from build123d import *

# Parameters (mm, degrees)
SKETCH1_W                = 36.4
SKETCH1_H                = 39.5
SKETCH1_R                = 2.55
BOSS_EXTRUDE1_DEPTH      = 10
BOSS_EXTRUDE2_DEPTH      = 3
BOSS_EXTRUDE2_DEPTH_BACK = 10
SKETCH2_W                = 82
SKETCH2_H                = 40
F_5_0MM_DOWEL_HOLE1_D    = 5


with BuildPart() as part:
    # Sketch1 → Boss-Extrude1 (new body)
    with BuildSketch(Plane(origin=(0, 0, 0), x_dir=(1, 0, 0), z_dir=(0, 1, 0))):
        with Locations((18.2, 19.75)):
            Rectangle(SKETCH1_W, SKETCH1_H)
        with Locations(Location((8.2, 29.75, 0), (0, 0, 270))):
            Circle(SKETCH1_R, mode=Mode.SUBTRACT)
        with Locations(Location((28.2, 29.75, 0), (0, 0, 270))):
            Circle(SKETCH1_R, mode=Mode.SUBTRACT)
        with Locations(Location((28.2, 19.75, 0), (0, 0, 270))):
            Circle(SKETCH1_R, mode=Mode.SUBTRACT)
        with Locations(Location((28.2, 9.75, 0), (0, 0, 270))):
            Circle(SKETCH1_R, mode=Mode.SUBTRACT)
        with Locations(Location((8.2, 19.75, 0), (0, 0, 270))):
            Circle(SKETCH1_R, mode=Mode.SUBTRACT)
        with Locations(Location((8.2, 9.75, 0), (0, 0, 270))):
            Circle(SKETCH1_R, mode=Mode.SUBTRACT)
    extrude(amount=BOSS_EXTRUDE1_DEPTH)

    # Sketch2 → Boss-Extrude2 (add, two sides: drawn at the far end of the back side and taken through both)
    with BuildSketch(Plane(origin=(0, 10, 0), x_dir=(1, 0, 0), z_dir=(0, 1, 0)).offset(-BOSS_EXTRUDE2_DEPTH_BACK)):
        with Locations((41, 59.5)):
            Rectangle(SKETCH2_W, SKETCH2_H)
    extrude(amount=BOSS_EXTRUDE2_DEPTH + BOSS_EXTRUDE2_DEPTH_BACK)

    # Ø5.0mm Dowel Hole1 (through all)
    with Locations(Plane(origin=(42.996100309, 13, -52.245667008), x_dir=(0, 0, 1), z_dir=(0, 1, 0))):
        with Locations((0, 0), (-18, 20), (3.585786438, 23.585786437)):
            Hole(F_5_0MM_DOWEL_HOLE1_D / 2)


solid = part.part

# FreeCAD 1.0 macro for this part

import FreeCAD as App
import Part
import Sketcher

doc = App.newDocument("Part")
body = doc.addObject("PartDesign::Body", "Body")

# Sketch on XZ plane
sketch1 = doc.addObject("Sketcher::SketchObject", "Sketch")
body.addObject(sketch1)
sketch1.AttachmentSupport = (doc.XZ_Plane, [""])
sketch1.MapMode = "FlatFace"
sketch1.addGeometry([
    Part.LineSegment(App.Vector(0, -39.5, 0), App.Vector(0, 0, 0)),  # 0
    Part.LineSegment(App.Vector(0, 0, 0), App.Vector(36.4, 0, 0)),  # 1
    Part.LineSegment(App.Vector(36.4, 0, 0), App.Vector(36.4, -39.5, 0)),  # 2
    Part.LineSegment(App.Vector(36.4, -39.5, 0), App.Vector(0, -39.5, 0)),  # 3
    Part.Circle(App.Vector(8.2, -9.8, 0), App.Vector(0, 0, 1), 2.5),  # 4
    Part.Circle(App.Vector(28.2, -9.8, 0), App.Vector(0, 0, 1), 2.5),  # 5
    Part.Circle(App.Vector(8.2, -19.8, 0), App.Vector(0, 0, 1), 2.5),  # 6
    Part.Circle(App.Vector(8.2, -29.8, 0), App.Vector(0, 0, 1), 2.5),  # 7
    Part.Circle(App.Vector(28.2, -19.8, 0), App.Vector(0, 0, 1), 2.5),  # 8
    Part.Circle(App.Vector(28.2, -29.8, 0), App.Vector(0, 0, 1), 2.5),  # 9
], False)
sketch1.addConstraint([
    Sketcher.Constraint("Coincident", 0, 2, 1, 1),
    Sketcher.Constraint("Coincident", 1, 2, 2, 1),
    Sketcher.Constraint("Coincident", 2, 2, 3, 1),
    Sketcher.Constraint("Coincident", 3, 2, 0, 1),
    Sketcher.Constraint("Vertical", 0),
    Sketcher.Constraint("Horizontal", 1),
    Sketcher.Constraint("Vertical", 2),
    Sketcher.Constraint("Horizontal", 3),
    Sketcher.Constraint("Coincident", 0, 2, -1, 1),
    Sketcher.Constraint("Equal", 4, 5),
    Sketcher.Constraint("Equal", 5, 6),
    Sketcher.Constraint("Equal", 6, 7),
    Sketcher.Constraint("Equal", 7, 8),
    Sketcher.Constraint("Equal", 8, 9),
    Sketcher.Constraint("Horizontal", 4, 3, 5, 3),
    Sketcher.Constraint("Horizontal", 6, 3, 8, 3),
    Sketcher.Constraint("Horizontal", 7, 3, 9, 3),
    Sketcher.Constraint("Vertical", 4, 3, 6, 3),
    Sketcher.Constraint("Vertical", 6, 3, 7, 3),
    Sketcher.Constraint("Vertical", 5, 3, 8, 3),
    Sketcher.Constraint("Vertical", 8, 3, 9, 3),
    Sketcher.Constraint("Diameter", 4, 5.1),
    Sketcher.Constraint("DistanceX", 1, 1, 1, 2, 36.4),
    Sketcher.Constraint("DistanceY", 0, 1, 0, 2, 39.5),
    Sketcher.Constraint("DistanceX", 4, 3, 5, 3, 20.0),
    Sketcher.Constraint("DistanceY", 6, 3, 4, 3, 10.0),
    Sketcher.Constraint("DistanceY", 7, 3, 6, 3, 10.0),
    Sketcher.Constraint("DistanceX", -1, 1, 4, 3, 8.2),
    Sketcher.Constraint("DistanceY", 4, 3, -1, 1, 9.75),
])
pad1 = doc.addObject("PartDesign::Pad", "Pad")
body.addObject(pad1)
pad1.Profile = sketch1
pad1.Length = 10
pad1.Reversed = True

# Sketch on XZ plane
sketch2 = doc.addObject("Sketcher::SketchObject", "Sketch001")
body.addObject(sketch2)
sketch2.AttachmentSupport = (doc.XZ_Plane, [""])
sketch2.MapMode = "FlatFace"
sketch2.AttachmentOffset = App.Placement(App.Vector(0, 0, -10), App.Rotation())
sketch2.addGeometry([
    Part.LineSegment(App.Vector(0, -80, 0), App.Vector(0, -40, 0)),
    Part.LineSegment(App.Vector(0, -40, 0), App.Vector(82, -40, 0)),
    Part.LineSegment(App.Vector(82, -40, 0), App.Vector(82, -80, 0)),
    Part.LineSegment(App.Vector(82, -80, 0), App.Vector(0, -80, 0)),
], False)
sketch2.addConstraint([
    Sketcher.Constraint("Coincident", 0, 2, 1, 1),
    Sketcher.Constraint("Coincident", 1, 2, 2, 1),
    Sketcher.Constraint("Coincident", 2, 2, 3, 1),
    Sketcher.Constraint("Coincident", 3, 2, 0, 1),
    Sketcher.Constraint("Vertical", 0),
    Sketcher.Constraint("Horizontal", 1),
    Sketcher.Constraint("Vertical", 2),
    Sketcher.Constraint("Horizontal", 3),
    Sketcher.Constraint("PointOnObject", 0, 2, -2),
    Sketcher.Constraint("DistanceX", 1, 1, 1, 2, 82.0),
    Sketcher.Constraint("DistanceY", 0, 1, 0, 2, 40.0),
    Sketcher.Constraint("DistanceY", 0, 2, -1, 1, 39.5),
])
pad2 = doc.addObject("PartDesign::Pad", "Pad001")
body.addObject(pad2)
pad2.Profile = sketch2
pad2.Type = "TwoLengths"
pad2.Length = 3
pad2.Length2 = 10
pad2.Reversed = True

# Sketch on XZ plane
sketch3 = doc.addObject("Sketcher::SketchObject", "Sketch002")
body.addObject(sketch3)
sketch3.AttachmentSupport = (doc.XZ_Plane, [""])
sketch3.MapMode = "FlatFace"
sketch3.AttachmentOffset = App.Placement(App.Vector(0, 0, -13), App.Rotation())
sketch3.addGeometry([
    Part.Circle(App.Vector(43, -52.2, 0), App.Vector(0, 0, 1), 2.5),
    Part.Circle(App.Vector(63, -70.2, 0), App.Vector(0, 0, 1), 2.5),
    Part.Circle(App.Vector(66.6, -48.7, 0), App.Vector(0, 0, 1), 2.5),
], False)
sketch3.addConstraint([
    Sketcher.Constraint("Equal", 0, 1),
    Sketcher.Constraint("Equal", 1, 2),
    Sketcher.Constraint("Diameter", 0, 5.0),
    Sketcher.Constraint("DistanceX", 0, 3, 1, 3, 20.0),
    Sketcher.Constraint("DistanceY", 1, 3, 0, 3, 18.0),
    Sketcher.Constraint("DistanceX", -1, 1, 0, 3, 42.9961),
    Sketcher.Constraint("DistanceY", 2, 3, -1, 1, 48.659881),
    Sketcher.Constraint("DistanceY", 0, 3, -1, 1, 52.245667),
    Sketcher.Constraint("DistanceX", -1, 1, 2, 3, 66.581887),
])
doc.recompute()
hole = doc.addObject("PartDesign::Hole", "Hole")
body.addObject(hole)
hole.Profile = sketch3
hole.ThreadType = "None"
hole.Diameter = 5
hole.DepthType = "ThroughAll"
hole.Reversed = True

doc.recompute()
